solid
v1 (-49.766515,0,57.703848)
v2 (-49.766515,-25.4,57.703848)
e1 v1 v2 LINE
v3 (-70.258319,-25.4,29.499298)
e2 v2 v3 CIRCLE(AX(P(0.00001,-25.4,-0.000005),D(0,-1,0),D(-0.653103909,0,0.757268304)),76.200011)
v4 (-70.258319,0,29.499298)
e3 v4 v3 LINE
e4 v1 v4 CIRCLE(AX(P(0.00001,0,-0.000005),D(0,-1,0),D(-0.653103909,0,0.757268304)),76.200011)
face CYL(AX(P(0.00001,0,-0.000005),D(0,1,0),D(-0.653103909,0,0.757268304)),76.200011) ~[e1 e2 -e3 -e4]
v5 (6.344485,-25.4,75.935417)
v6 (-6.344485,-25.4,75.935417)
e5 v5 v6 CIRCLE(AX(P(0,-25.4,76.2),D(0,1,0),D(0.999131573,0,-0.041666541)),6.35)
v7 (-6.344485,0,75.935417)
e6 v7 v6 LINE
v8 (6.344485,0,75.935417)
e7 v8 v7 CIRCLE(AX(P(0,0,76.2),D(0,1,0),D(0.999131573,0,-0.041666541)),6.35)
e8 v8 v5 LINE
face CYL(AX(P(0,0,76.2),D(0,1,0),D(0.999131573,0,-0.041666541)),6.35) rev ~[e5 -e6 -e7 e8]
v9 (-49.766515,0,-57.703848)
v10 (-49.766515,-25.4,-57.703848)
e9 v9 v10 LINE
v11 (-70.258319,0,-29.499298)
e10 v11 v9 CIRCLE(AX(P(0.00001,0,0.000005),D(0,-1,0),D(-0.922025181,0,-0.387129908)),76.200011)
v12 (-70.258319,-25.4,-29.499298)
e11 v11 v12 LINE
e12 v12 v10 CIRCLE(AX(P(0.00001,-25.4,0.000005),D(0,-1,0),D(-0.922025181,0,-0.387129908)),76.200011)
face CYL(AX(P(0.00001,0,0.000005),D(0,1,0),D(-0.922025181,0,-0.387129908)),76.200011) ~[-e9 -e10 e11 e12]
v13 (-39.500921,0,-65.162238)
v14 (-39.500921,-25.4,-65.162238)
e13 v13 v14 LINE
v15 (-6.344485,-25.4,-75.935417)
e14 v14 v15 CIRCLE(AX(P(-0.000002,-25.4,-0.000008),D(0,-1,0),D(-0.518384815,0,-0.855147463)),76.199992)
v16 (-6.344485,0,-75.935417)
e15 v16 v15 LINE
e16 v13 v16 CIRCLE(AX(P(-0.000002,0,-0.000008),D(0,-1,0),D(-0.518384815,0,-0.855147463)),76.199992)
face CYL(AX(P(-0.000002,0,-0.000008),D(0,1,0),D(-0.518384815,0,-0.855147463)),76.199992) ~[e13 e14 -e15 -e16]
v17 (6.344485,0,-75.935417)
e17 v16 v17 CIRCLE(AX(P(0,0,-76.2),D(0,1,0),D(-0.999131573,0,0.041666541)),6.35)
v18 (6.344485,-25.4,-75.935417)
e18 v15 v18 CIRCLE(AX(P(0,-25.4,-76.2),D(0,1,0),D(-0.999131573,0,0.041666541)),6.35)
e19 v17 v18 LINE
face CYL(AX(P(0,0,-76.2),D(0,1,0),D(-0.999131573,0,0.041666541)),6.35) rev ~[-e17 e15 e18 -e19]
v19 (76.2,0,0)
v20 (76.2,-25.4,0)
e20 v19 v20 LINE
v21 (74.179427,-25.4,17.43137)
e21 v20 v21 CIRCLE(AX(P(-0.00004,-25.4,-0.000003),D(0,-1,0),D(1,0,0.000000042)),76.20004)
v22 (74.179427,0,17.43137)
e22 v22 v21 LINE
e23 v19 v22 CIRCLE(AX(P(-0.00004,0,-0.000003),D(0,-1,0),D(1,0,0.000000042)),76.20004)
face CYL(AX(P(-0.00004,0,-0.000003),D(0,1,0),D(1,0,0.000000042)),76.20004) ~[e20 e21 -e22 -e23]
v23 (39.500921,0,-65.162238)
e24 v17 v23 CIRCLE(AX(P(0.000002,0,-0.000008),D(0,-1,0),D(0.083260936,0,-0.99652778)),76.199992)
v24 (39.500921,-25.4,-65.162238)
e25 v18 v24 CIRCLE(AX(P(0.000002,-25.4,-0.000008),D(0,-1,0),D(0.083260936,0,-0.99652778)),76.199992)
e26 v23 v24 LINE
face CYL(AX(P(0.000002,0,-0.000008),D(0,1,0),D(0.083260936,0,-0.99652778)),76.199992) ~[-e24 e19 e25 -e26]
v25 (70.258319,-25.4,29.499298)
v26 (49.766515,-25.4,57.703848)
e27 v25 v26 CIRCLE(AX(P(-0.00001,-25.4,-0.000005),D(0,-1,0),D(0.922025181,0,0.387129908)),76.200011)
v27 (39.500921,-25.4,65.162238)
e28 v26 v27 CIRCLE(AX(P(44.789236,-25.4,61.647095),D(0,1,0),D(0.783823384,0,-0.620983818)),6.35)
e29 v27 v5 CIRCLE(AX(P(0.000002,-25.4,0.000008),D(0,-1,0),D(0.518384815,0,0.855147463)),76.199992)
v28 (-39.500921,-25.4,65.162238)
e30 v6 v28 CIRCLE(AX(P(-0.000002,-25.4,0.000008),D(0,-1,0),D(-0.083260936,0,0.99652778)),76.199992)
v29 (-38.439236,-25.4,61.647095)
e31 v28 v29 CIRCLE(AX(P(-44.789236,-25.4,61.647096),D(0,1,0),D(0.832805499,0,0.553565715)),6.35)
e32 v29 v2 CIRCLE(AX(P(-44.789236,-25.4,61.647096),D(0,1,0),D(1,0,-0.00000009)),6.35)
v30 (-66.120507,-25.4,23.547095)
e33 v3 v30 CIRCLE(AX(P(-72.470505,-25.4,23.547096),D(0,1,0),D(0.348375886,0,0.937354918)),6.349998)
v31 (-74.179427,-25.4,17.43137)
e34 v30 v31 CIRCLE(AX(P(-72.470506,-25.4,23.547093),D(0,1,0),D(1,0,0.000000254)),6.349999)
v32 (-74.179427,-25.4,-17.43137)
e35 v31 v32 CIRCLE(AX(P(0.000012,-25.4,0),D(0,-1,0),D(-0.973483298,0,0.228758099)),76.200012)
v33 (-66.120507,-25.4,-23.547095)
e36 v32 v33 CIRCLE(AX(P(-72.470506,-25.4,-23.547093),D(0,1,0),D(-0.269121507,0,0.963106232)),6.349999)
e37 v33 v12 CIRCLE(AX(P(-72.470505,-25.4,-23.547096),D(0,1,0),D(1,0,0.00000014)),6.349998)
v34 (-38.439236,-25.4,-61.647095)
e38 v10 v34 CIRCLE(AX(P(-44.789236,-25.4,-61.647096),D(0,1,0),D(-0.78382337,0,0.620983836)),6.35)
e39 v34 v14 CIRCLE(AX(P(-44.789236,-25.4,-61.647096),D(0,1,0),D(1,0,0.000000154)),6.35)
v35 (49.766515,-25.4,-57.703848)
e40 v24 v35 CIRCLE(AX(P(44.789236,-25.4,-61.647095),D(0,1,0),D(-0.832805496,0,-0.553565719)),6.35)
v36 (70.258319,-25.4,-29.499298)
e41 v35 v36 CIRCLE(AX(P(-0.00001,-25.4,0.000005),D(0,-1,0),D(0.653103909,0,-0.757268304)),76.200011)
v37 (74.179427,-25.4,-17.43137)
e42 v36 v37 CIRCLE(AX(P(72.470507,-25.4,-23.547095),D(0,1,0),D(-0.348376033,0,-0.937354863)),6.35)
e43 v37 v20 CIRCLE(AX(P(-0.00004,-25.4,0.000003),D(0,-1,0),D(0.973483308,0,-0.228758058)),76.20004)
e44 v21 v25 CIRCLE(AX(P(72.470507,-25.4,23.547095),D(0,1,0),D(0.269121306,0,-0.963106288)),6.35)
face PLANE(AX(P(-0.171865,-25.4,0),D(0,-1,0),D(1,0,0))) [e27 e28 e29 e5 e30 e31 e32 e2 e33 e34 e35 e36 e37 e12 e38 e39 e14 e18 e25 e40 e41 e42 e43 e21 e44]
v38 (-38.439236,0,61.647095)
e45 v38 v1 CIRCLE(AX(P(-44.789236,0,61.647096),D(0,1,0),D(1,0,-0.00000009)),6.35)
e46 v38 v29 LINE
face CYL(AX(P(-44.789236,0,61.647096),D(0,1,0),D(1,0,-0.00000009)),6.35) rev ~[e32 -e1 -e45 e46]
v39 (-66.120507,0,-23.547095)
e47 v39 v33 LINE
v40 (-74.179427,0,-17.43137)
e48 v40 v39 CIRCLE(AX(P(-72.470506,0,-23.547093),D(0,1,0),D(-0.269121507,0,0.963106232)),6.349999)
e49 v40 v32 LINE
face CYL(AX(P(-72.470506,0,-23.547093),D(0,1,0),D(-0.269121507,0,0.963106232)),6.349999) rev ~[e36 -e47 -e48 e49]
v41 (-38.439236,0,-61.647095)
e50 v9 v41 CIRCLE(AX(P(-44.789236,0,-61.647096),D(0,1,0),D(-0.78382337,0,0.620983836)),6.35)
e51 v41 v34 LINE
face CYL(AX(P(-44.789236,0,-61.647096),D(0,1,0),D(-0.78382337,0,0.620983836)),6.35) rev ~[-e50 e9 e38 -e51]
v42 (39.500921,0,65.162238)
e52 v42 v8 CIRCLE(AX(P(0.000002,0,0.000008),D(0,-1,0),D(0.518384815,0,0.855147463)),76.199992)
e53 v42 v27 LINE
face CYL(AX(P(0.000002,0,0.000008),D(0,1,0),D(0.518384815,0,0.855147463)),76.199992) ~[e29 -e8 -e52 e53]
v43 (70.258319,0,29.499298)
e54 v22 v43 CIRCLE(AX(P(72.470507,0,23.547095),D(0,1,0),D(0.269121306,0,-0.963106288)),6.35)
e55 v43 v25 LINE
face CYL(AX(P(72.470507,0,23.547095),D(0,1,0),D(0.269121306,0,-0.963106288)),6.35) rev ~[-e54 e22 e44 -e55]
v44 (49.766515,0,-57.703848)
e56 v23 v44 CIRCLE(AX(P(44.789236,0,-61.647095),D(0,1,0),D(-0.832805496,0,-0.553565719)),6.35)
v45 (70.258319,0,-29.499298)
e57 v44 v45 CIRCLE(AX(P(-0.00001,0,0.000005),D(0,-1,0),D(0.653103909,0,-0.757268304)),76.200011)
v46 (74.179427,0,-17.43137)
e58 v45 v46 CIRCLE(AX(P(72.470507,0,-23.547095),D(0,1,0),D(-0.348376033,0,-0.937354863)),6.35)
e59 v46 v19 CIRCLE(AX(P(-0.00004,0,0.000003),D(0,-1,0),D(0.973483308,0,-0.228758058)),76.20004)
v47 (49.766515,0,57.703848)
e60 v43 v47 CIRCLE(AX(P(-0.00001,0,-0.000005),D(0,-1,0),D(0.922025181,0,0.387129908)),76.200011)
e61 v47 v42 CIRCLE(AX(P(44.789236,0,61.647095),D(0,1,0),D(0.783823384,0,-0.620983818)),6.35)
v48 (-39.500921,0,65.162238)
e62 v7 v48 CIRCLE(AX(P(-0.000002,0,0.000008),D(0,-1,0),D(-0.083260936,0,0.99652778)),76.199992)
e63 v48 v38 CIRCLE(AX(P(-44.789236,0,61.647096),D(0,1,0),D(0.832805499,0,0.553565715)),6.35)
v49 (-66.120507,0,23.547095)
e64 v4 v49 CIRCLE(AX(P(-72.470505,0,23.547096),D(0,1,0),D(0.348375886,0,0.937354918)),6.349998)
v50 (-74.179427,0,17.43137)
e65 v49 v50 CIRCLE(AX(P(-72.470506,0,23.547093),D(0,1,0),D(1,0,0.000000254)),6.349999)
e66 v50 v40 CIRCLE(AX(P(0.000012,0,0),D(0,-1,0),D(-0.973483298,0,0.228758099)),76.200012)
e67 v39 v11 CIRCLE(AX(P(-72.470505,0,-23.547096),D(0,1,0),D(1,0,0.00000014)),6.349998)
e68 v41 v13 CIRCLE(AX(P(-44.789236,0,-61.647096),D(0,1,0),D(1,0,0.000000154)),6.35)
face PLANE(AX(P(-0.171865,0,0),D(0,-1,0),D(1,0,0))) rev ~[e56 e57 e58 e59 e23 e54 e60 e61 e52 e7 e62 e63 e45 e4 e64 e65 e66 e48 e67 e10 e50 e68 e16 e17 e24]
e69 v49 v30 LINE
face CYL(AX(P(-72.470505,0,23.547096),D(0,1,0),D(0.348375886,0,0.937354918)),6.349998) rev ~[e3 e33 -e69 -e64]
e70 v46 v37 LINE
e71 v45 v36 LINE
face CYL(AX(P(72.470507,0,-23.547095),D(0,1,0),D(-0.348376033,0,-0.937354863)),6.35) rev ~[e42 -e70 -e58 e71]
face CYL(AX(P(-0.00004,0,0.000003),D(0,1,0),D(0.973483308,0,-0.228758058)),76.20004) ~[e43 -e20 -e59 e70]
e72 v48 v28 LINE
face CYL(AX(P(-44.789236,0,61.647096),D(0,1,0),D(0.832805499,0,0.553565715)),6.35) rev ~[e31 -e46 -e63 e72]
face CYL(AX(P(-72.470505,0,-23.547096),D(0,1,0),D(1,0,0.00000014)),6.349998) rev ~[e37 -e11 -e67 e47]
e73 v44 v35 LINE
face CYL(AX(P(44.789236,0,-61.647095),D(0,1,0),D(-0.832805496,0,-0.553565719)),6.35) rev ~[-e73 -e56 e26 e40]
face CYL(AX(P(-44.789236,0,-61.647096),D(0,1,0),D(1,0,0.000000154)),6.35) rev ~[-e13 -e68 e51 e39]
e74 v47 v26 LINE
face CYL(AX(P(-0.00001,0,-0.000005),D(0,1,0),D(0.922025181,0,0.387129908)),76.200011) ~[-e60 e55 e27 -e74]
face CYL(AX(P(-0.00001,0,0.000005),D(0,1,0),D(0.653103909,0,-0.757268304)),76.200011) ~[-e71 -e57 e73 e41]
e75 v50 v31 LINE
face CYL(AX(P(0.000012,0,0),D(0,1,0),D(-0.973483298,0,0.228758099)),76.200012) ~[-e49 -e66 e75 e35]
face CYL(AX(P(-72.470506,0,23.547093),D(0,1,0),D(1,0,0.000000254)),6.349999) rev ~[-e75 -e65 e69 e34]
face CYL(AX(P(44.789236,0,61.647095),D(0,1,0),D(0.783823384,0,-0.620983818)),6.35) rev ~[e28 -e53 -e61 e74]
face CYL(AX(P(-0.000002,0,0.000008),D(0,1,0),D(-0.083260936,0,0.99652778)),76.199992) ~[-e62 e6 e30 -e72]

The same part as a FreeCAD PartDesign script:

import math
import FreeCAD as App
import Part
import Sketcher
from FreeCAD import Vector
Q = App.Units.Quantity

doc = App.newDocument("Part")
params = doc.addObject("Spreadsheet::Sheet", "Params")
for row, (alias, value) in enumerate([
    ("sketch1_radius", "0.25 in"),
    ("pad1_length", "1 in"),
], start=1):
    params.set(f"A{row}", alias)
    params.set(f"B{row}", "=" + value)
    params.setAlias(f"B{row}", alias)

body = doc.addObject("PartDesign::Body", "Body")

# Sketch on XZ plane
sketch1 = body.newObject("Sketcher::SketchObject", "Sketch")
sketch1.AttachmentSupport = (doc.getObject("XZ_Plane"), [""])
sketch1.MapMode = "FlatFace"
sketch1.addGeometry([
    Part.ArcOfCircle(Part.Circle(Vector(0, 0, 0), Vector(0, 0, 1), 76.2), math.radians(-13.22), math.radians(0)),  # 0
    Part.ArcOfCircle(Part.Circle(Vector(0, 0, 0), Vector(0, 0, 1), 76.2), math.radians(0), math.radians(13.22)),  # 1
    Part.ArcOfCircle(Part.Circle(Vector(72.5, 23.5, 0), Vector(0, 0, 1), 6.3), math.radians(110), math.radians(286)),  # 2
    Part.ArcOfCircle(Part.Circle(Vector(0, 0, 0), Vector(0, 0, 1), 76.2), math.radians(23), math.radians(49)),  # 3
    Part.ArcOfCircle(Part.Circle(Vector(44.8, 61.6, 0), Vector(0, 0, 1), 6.4), math.radians(146), math.radians(322)),  # 4
    Part.ArcOfCircle(Part.Circle(Vector(0, 0, 0), Vector(0, 0, 1), 76.2), math.radians(59), math.radians(85)),  # 5
    Part.ArcOfCircle(Part.Circle(Vector(0, 76.2, 0), Vector(0, 0, 1), 6.3), math.radians(-178), math.radians(-2)),  # 6
    Part.ArcOfCircle(Part.Circle(Vector(0, 0, 0), Vector(0, 0, 1), 76.2), math.radians(95), math.radians(121)),  # 7
    Part.ArcOfCircle(Part.Circle(Vector(-44.8, 61.6, 0), Vector(0, 0, 1), 6.3), math.radians(0), math.radians(34)),  # 8
    Part.ArcOfCircle(Part.Circle(Vector(-44.8, 61.6, 0), Vector(0, 0, 1), 6.4), math.radians(-142), math.radians(0)),  # 9
    Part.ArcOfCircle(Part.Circle(Vector(0, 0, 0), Vector(0, 0, 1), 76.2), math.radians(131), math.radians(157)),  # 10
    Part.ArcOfCircle(Part.Circle(Vector(-72.5, 23.5, 0), Vector(0, 0, 1), 6.3), math.radians(0), math.radians(70)),  # 11
    Part.ArcOfCircle(Part.Circle(Vector(-72.5, 23.5, 0), Vector(0, 0, 1), 6.3), math.radians(-106), math.radians(0)),  # 12
    Part.ArcOfCircle(Part.Circle(Vector(0, 0, 0), Vector(0, 0, 1), 76.2), math.radians(167), math.radians(193)),  # 13
    Part.ArcOfCircle(Part.Circle(Vector(-72.5, -23.5, 0), Vector(0, 0, 1), 6.3), math.radians(0), math.radians(106)),  # 14
    Part.ArcOfCircle(Part.Circle(Vector(-72.5, -23.5, 0), Vector(0, 0, 1), 6.3), math.radians(-70), math.radians(0)),  # 15
    Part.ArcOfCircle(Part.Circle(Vector(0, 0, 0), Vector(0, 0, 1), 76.2), math.radians(-157), math.radians(-131)),  # 16
    Part.ArcOfCircle(Part.Circle(Vector(-44.8, -61.6, 0), Vector(0, 0, 1), 6.4), math.radians(0), math.radians(142)),  # 17
    Part.ArcOfCircle(Part.Circle(Vector(-44.8, -61.6, 0), Vector(0, 0, 1), 6.3), math.radians(-34), math.radians(0)),  # 18
    Part.ArcOfCircle(Part.Circle(Vector(0, 0, 0), Vector(0, 0, 1), 76.2), math.radians(-121), math.radians(-95)),  # 19
    Part.ArcOfCircle(Part.Circle(Vector(0, -76.2, 0), Vector(0, 0, 1), 6.3), math.radians(2), math.radians(178)),  # 20
    Part.ArcOfCircle(Part.Circle(Vector(0, 0, 0), Vector(0, 0, 1), 76.2), math.radians(-85), math.radians(-59)),  # 21
    Part.ArcOfCircle(Part.Circle(Vector(44.8, -61.6, 0), Vector(0, 0, 1), 6.4), math.radians(38), math.radians(214)),  # 22
    Part.ArcOfCircle(Part.Circle(Vector(0, 0, 0), Vector(0, 0, 1), 76.2), math.radians(-49), math.radians(-23)),  # 23
    Part.ArcOfCircle(Part.Circle(Vector(72.5, -23.5, 0), Vector(0, 0, 1), 6.3), math.radians(74), math.radians(250)),  # 24
], False)
sketch1.addConstraint([
    Sketcher.Constraint("Tangent", 0, 2, 1, 1),
    Sketcher.Constraint("Coincident", 1, 2, 2, 2),
    Sketcher.Constraint("Coincident", 2, 1, 3, 1),
    Sketcher.Constraint("Coincident", 3, 2, 4, 2),
    Sketcher.Constraint("Coincident", 4, 1, 5, 1),
    Sketcher.Constraint("Coincident", 5, 2, 6, 2),
    Sketcher.Constraint("Coincident", 6, 1, 7, 1),
    Sketcher.Constraint("Coincident", 7, 2, 8, 2),
    Sketcher.Constraint("Tangent", 8, 1, 9, 2),
    Sketcher.Constraint("Coincident", 9, 1, 10, 1),
    Sketcher.Constraint("Coincident", 10, 2, 11, 2),
    Sketcher.Constraint("Tangent", 11, 1, 12, 2),
    Sketcher.Constraint("Coincident", 12, 1, 13, 1),
    Sketcher.Constraint("Coincident", 13, 2, 14, 2),
    Sketcher.Constraint("Tangent", 14, 1, 15, 2),
    Sketcher.Constraint("Coincident", 15, 1, 16, 1),
    Sketcher.Constraint("Coincident", 16, 2, 17, 2),
    Sketcher.Constraint("Tangent", 17, 1, 18, 2),
    Sketcher.Constraint("Coincident", 18, 1, 19, 1),
    Sketcher.Constraint("Coincident", 19, 2, 20, 2),
    Sketcher.Constraint("Coincident", 20, 1, 21, 1),
    Sketcher.Constraint("Coincident", 21, 2, 22, 2),
    Sketcher.Constraint("Coincident", 22, 1, 23, 1),
    Sketcher.Constraint("Coincident", 23, 2, 24, 2),
    Sketcher.Constraint("Coincident", 24, 1, 0, 1),
    Sketcher.Constraint("Coincident", 5, 3, -1, 1),
    Sketcher.Constraint("Coincident", 7, 3, -1, 1),
    Sketcher.Constraint("Coincident", 19, 3, -1, 1),
    Sketcher.Constraint("Coincident", 21, 3, -1, 1),
    Sketcher.Constraint("Coincident", 13, 3, 10, 3),
    Sketcher.Constraint("Coincident", 16, 3, 5, 3),
    Sketcher.Constraint("Coincident", 19, 3, 3, 3),
    Sketcher.Constraint("Coincident", 21, 3, 10, 3),
    Sketcher.Constraint("Coincident", 23, 3, 7, 3),
    Sketcher.Constraint("Equal", 0, 1),
    Sketcher.Constraint("Equal", 2, 4),
    Sketcher.Constraint("Equal", 4, 6),
    Sketcher.Constraint("Equal", 5, 7),
    Sketcher.Constraint("Equal", 6, 8),
    Sketcher.Constraint("Equal", 8, 9),
    Sketcher.Constraint("Equal", 3, 10),
    Sketcher.Constraint("Equal", 8, 11),
    Sketcher.Constraint("Equal", 11, 12),
    Sketcher.Constraint("Equal", 10, 13),
    Sketcher.Constraint("Equal", 12, 14),
    Sketcher.Constraint("Equal", 14, 15),
    Sketcher.Constraint("Equal", 13, 16),
    Sketcher.Constraint("Equal", 14, 17),
    Sketcher.Constraint("Equal", 17, 18),
    Sketcher.Constraint("Equal", 7, 19),
    Sketcher.Constraint("Equal", 18, 20),
    Sketcher.Constraint("Equal", 19, 21),
    Sketcher.Constraint("Equal", 20, 22),
    Sketcher.Constraint("Equal", 16, 23),
    Sketcher.Constraint("Equal", 22, 24),
    Sketcher.Constraint("Symmetric", 2, 3, 14, 3, -1, 1),
    Sketcher.Constraint("Symmetric", 4, 3, 17, 3, -1, 1),
    Sketcher.Constraint("Symmetric", 6, 3, 20, 3, -1, 1),
    Sketcher.Constraint("Symmetric", 8, 3, 22, 3, -1, 1),
    Sketcher.Constraint("Symmetric", 11, 3, 24, 3, -1, 1),
    Sketcher.Constraint("Symmetric", 4, 3, 8, 3, -2),
    Sketcher.Constraint("Symmetric", 2, 3, 11, 3, -2),
    Sketcher.Constraint("PointOnObject", 6, 3, -2),
    Sketcher.Constraint("PointOnObject", 0, 2, -1),
    Sketcher.Constraint("Horizontal", 9, 3, 8, 1),
    Sketcher.Constraint("Horizontal", 12, 3, 11, 1),
    Sketcher.Constraint("Horizontal", 1, 2, 12, 1),
    Sketcher.Constraint("Horizontal", 24, 3, 14, 1),
    Sketcher.Constraint("Horizontal", 22, 3, 17, 1),
    Sketcher.Constraint("Vertical", 1, 2, 24, 1),
    Sketcher.Constraint("Radius", 2, Q("0.25 in")),
    Sketcher.Constraint("DistanceY", -1, 1, 6, 3, Q("3 in")),
    Sketcher.Constraint("DistanceX", -1, 1, 0, 2, Q("3 in")),
    Sketcher.Constraint("DistanceY", 2, 3, 4, 3, Q("1.5 in")),
    Sketcher.Constraint("Radius", 0, Q("76.20004 mm")),
    Sketcher.Constraint("Radius", 5, Q("76.199992 mm")),
    Sketcher.Constraint("DistanceY", -1, 1, 2, 1, Q("29.499298 mm")),
    Sketcher.Constraint("DistanceY", 1, 3, 2, 3, Q("23.547098 mm")),
    Sketcher.Constraint("DistanceX", 4, 1, 2, 1, Q("30.757398 mm")),
])
sketch1.setExpression("Constraints[70]", "Params.sketch1_radius")
pad1 = body.newObject("PartDesign::Pad", "Pad")
pad1.Profile = sketch1
pad1.setExpression("Length", "Params.pad1_length")

doc.recompute()
